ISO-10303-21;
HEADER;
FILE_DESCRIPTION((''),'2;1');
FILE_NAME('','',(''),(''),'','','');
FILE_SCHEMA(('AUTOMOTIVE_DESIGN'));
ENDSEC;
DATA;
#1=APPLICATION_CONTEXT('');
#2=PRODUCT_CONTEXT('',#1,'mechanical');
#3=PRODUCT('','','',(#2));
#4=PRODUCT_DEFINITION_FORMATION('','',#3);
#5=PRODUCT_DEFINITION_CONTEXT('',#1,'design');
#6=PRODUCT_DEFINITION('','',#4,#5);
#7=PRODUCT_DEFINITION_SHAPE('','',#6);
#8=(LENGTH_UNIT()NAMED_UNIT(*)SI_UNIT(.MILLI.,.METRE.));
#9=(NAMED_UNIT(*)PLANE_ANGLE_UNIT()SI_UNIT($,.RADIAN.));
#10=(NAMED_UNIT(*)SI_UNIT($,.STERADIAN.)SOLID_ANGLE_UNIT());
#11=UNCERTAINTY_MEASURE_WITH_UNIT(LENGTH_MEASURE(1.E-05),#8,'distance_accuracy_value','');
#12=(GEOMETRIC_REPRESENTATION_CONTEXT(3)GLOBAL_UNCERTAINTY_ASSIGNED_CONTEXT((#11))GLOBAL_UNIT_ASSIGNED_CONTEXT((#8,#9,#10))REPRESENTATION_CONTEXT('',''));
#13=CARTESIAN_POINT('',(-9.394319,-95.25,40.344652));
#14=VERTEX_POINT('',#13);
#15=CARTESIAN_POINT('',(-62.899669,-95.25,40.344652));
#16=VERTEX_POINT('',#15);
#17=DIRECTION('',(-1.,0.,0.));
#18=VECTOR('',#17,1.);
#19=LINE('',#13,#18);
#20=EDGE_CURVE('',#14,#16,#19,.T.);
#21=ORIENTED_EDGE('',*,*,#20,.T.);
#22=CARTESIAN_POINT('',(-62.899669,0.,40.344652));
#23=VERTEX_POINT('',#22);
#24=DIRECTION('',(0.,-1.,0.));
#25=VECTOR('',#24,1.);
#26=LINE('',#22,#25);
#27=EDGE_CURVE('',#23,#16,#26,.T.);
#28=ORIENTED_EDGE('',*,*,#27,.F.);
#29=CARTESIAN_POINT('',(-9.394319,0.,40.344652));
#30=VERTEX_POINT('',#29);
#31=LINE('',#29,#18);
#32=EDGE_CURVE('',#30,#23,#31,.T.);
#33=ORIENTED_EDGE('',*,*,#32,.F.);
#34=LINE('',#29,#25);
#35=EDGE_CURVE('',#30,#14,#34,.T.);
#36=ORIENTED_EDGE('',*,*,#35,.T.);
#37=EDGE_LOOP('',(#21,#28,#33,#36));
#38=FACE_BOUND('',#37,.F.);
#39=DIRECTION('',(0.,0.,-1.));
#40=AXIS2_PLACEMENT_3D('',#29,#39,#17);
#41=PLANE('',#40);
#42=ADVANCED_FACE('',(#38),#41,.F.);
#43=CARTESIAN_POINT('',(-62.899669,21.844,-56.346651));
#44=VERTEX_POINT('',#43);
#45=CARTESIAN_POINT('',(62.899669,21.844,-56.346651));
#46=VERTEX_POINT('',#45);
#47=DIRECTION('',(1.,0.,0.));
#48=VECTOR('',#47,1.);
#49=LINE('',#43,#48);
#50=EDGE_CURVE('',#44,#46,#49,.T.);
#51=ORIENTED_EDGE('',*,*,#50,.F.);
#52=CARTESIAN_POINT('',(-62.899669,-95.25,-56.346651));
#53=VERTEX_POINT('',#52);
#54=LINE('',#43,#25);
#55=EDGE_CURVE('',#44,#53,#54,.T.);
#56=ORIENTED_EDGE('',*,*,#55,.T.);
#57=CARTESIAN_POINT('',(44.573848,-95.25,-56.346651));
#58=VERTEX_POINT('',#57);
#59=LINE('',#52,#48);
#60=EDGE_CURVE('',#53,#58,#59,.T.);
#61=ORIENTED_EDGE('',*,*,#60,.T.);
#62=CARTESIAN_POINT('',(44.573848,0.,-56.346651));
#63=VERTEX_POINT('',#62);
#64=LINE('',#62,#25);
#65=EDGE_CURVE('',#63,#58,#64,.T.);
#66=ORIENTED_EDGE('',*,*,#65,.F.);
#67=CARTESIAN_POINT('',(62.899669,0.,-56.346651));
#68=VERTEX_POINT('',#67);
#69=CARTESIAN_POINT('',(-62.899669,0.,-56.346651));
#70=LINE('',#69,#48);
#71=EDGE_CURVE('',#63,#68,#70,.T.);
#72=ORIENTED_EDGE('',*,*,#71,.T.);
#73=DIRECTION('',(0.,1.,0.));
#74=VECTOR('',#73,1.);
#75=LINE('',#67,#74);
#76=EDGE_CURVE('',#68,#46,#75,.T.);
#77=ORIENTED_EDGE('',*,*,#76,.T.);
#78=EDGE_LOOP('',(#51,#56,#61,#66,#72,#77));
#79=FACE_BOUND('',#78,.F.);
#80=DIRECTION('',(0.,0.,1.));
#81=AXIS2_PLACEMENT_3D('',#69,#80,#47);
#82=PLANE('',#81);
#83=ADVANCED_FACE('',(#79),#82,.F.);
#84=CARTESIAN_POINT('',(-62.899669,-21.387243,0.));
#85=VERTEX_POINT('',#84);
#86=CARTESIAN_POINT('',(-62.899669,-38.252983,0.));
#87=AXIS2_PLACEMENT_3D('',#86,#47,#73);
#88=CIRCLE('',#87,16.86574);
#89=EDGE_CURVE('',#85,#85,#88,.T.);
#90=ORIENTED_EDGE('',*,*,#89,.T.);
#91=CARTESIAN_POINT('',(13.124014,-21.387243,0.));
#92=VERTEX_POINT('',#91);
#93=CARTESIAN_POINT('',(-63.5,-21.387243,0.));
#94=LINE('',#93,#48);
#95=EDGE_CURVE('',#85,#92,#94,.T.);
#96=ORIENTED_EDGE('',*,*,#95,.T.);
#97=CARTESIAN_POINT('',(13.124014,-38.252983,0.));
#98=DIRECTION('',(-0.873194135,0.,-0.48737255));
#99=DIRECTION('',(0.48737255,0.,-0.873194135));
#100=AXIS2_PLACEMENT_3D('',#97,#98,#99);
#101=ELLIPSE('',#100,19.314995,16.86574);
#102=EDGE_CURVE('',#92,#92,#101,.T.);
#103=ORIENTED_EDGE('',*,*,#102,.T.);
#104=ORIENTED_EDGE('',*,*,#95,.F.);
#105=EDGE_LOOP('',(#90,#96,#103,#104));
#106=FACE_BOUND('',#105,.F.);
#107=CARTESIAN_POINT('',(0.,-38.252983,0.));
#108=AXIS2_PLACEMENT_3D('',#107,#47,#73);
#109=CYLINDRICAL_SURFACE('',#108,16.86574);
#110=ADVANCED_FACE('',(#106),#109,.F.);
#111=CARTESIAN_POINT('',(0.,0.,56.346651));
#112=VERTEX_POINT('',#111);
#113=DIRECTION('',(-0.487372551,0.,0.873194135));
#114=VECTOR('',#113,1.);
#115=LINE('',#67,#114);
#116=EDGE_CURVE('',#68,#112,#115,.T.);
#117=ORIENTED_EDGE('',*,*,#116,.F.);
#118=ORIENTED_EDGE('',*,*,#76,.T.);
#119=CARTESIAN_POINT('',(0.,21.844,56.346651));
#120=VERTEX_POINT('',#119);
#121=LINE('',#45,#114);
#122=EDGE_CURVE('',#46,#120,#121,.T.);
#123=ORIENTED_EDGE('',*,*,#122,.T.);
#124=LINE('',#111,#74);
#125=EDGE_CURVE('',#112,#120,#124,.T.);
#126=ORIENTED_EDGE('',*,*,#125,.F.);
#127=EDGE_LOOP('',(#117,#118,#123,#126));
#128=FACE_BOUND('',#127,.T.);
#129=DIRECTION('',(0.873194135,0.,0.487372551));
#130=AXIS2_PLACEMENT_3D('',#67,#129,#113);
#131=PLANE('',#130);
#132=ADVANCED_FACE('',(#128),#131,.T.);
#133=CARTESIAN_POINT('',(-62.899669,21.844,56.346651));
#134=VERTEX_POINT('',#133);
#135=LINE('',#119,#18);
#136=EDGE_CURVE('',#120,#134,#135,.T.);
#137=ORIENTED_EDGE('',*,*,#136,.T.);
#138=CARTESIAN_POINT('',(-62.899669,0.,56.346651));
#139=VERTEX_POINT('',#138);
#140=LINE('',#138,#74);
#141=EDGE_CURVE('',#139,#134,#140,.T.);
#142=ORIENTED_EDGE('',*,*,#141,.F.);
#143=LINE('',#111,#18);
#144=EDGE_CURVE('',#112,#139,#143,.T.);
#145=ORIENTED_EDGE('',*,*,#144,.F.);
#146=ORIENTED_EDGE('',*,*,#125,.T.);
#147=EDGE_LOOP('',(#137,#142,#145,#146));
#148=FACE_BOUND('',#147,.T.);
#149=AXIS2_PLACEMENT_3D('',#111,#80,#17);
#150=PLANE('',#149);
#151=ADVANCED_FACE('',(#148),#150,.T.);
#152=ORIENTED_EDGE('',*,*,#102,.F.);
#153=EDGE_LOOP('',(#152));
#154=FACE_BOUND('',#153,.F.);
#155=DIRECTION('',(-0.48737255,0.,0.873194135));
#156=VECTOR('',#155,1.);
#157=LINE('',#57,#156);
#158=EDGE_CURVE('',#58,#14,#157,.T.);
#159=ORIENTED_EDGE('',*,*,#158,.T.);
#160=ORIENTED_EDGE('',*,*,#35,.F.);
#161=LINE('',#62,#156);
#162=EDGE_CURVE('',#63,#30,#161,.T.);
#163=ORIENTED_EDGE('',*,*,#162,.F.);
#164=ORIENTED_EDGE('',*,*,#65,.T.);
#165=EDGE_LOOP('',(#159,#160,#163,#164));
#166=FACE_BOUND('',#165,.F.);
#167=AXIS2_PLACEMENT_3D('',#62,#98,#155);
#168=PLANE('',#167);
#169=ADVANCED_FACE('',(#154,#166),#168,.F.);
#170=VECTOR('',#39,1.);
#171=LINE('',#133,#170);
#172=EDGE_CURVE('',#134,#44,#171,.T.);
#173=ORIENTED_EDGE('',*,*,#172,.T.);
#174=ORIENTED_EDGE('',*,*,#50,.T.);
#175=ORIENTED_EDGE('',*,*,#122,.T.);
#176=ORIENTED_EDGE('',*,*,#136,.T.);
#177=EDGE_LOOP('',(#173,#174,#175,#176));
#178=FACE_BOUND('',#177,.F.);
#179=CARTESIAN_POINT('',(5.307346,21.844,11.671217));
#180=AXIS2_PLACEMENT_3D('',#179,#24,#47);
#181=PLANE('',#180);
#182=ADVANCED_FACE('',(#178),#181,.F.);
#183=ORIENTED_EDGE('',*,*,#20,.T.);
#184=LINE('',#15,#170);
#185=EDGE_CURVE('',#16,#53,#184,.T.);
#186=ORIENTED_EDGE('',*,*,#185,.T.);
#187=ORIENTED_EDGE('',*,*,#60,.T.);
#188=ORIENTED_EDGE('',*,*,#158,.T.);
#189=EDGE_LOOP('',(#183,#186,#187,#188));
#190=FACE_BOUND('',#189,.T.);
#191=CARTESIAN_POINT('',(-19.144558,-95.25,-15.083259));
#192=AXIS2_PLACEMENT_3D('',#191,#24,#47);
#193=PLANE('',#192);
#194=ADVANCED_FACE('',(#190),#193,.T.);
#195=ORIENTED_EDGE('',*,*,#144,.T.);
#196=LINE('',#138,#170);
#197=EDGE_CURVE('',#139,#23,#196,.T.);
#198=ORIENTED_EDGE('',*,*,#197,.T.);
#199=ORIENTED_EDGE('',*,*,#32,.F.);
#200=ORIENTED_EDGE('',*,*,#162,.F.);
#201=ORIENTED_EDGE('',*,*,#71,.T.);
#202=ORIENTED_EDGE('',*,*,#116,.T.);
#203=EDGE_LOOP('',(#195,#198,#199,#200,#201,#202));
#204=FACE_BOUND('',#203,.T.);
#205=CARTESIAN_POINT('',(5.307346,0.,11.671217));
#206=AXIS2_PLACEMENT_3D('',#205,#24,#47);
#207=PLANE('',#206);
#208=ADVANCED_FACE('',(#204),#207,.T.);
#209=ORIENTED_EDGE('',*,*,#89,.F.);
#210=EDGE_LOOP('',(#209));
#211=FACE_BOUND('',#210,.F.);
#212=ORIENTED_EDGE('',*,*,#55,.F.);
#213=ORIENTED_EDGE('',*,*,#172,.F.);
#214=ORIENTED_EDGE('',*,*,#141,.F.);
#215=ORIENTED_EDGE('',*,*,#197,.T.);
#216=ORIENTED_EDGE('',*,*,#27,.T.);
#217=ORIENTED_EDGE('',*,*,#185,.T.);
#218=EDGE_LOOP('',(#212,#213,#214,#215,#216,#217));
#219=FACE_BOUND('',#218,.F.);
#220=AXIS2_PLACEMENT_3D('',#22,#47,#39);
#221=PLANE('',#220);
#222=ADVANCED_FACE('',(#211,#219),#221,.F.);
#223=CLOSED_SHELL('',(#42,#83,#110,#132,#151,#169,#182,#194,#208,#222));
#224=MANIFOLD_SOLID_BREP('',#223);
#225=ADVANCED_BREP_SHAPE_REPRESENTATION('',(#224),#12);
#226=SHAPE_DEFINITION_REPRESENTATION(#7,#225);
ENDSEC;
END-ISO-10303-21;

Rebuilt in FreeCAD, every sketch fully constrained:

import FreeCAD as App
import Part
import Sketcher

V = App.Vector
Q = App.Units.Quantity

doc = App.newDocument("Part")
body = doc.addObject("PartDesign::Body", "Body")

# Sketch on XZ plane
sketch1 = body.newObject("Sketcher::SketchObject", "Sketch")
sketch1.AttachmentSupport = (doc.getObject("XZ_Plane"), [""])
sketch1.MapMode = "FlatFace"
sketch1.addGeometry([
    Part.LineSegment(V(63, -56, 0), V(0, 56, 0)),
    Part.LineSegment(V(0, 56, 0), V(-63, 56, 0)),
    Part.LineSegment(V(-63, 56, 0), V(-63, -56, 0)),
    Part.LineSegment(V(-63, -56, 0), V(63, -56, 0)),
], False)
sketch1.addConstraint([
    Sketcher.Constraint("Coincident", 0, 2, 1, 1),
    Sketcher.Constraint("Coincident", 1, 2, 2, 1),
    Sketcher.Constraint("Coincident", 2, 2, 3, 1),
    Sketcher.Constraint("Coincident", 3, 2, 0, 1),
    Sketcher.Constraint("Horizontal", 1),
    Sketcher.Constraint("Vertical", 2),
    Sketcher.Constraint("Horizontal", 3),
    Sketcher.Constraint("Symmetric", 1, 2, 3, 2, -1, 1),
    Sketcher.Constraint("PointOnObject", 0, 2, -2),
    Sketcher.Constraint("DistanceX", 1, 2, 1, 1, Q("62.899669 mm")),
    Sketcher.Constraint("DistanceY", 2, 2, 2, 1, Q("112.693302 mm")),
])
pad1 = body.newObject("PartDesign::Pad", "Pad")
pad1.Profile = sketch1
pad1.Length = Q("0.86 in")
pad1.Reversed = True

# Sketch on XZ plane
sketch2 = body.newObject("Sketcher::SketchObject", "Sketch001")
sketch2.AttachmentSupport = (doc.getObject("XZ_Plane"), [""])
sketch2.MapMode = "FlatFace"
sketch2.addGeometry([
    Part.LineSegment(V(-9, 40, 0), V(-63, 40, 0)),
    Part.LineSegment(V(-63, 40, 0), V(-63, -56, 0)),
    Part.LineSegment(V(-63, -56, 0), V(45, -56, 0)),
    Part.LineSegment(V(45, -56, 0), V(-9, 40, 0)),
], False)
sketch2.addConstraint([
    Sketcher.Constraint("Coincident", 0, 2, 1, 1),
    Sketcher.Constraint("Coincident", 1, 2, 2, 1),
    Sketcher.Constraint("Coincident", 2, 2, 3, 1),
    Sketcher.Constraint("Coincident", 3, 2, 0, 1),
    Sketcher.Constraint("Horizontal", 0),
    Sketcher.Constraint("Vertical", 1),
    Sketcher.Constraint("Horizontal", 2),
    Sketcher.Constraint("DistanceX", 0, 2, 0, 1, Q("53.50535 mm")),
    Sketcher.Constraint("Distance", 3, Q("110.732882 mm")),
    Sketcher.Constraint("DistanceX", 2, 1, 2, 2, Q("107.473517 mm")),
    Sketcher.Constraint("DistanceX", 0, 2, -1, 1, Q("62.899669 mm")),
    Sketcher.Constraint("DistanceY", 1, 2, -1, 1, Q("56.346651 mm")),
])
pad2 = body.newObject("PartDesign::Pad", "Pad001")
pad2.Profile = sketch2
pad2.Length = Q("3.75 in")

# Sketch on YZ plane
sketch3 = body.newObject("Sketcher::SketchObject", "Sketch002")
sketch3.AttachmentSupport = (doc.getObject("YZ_Plane"), [""])
sketch3.MapMode = "FlatFace"
sketch3.addGeometry(Part.Circle(V(-38, 0, 0), V(0, 0, 1), 17), False)
sketch3.addConstraint([
    Sketcher.Constraint("PointOnObject", 0, 3, -1),
    Sketcher.Constraint("Diameter", 0, Q("33.73148 mm")),
    Sketcher.Constraint("DistanceX", 0, 3, -1, 1, Q("38.252983 mm")),
])
pocket1 = body.newObject("PartDesign::Pocket", "Pocket")
pocket1.Profile = sketch3
pocket1.Length = Q("5 in")
pocket1.Midplane = True

doc.recompute()
